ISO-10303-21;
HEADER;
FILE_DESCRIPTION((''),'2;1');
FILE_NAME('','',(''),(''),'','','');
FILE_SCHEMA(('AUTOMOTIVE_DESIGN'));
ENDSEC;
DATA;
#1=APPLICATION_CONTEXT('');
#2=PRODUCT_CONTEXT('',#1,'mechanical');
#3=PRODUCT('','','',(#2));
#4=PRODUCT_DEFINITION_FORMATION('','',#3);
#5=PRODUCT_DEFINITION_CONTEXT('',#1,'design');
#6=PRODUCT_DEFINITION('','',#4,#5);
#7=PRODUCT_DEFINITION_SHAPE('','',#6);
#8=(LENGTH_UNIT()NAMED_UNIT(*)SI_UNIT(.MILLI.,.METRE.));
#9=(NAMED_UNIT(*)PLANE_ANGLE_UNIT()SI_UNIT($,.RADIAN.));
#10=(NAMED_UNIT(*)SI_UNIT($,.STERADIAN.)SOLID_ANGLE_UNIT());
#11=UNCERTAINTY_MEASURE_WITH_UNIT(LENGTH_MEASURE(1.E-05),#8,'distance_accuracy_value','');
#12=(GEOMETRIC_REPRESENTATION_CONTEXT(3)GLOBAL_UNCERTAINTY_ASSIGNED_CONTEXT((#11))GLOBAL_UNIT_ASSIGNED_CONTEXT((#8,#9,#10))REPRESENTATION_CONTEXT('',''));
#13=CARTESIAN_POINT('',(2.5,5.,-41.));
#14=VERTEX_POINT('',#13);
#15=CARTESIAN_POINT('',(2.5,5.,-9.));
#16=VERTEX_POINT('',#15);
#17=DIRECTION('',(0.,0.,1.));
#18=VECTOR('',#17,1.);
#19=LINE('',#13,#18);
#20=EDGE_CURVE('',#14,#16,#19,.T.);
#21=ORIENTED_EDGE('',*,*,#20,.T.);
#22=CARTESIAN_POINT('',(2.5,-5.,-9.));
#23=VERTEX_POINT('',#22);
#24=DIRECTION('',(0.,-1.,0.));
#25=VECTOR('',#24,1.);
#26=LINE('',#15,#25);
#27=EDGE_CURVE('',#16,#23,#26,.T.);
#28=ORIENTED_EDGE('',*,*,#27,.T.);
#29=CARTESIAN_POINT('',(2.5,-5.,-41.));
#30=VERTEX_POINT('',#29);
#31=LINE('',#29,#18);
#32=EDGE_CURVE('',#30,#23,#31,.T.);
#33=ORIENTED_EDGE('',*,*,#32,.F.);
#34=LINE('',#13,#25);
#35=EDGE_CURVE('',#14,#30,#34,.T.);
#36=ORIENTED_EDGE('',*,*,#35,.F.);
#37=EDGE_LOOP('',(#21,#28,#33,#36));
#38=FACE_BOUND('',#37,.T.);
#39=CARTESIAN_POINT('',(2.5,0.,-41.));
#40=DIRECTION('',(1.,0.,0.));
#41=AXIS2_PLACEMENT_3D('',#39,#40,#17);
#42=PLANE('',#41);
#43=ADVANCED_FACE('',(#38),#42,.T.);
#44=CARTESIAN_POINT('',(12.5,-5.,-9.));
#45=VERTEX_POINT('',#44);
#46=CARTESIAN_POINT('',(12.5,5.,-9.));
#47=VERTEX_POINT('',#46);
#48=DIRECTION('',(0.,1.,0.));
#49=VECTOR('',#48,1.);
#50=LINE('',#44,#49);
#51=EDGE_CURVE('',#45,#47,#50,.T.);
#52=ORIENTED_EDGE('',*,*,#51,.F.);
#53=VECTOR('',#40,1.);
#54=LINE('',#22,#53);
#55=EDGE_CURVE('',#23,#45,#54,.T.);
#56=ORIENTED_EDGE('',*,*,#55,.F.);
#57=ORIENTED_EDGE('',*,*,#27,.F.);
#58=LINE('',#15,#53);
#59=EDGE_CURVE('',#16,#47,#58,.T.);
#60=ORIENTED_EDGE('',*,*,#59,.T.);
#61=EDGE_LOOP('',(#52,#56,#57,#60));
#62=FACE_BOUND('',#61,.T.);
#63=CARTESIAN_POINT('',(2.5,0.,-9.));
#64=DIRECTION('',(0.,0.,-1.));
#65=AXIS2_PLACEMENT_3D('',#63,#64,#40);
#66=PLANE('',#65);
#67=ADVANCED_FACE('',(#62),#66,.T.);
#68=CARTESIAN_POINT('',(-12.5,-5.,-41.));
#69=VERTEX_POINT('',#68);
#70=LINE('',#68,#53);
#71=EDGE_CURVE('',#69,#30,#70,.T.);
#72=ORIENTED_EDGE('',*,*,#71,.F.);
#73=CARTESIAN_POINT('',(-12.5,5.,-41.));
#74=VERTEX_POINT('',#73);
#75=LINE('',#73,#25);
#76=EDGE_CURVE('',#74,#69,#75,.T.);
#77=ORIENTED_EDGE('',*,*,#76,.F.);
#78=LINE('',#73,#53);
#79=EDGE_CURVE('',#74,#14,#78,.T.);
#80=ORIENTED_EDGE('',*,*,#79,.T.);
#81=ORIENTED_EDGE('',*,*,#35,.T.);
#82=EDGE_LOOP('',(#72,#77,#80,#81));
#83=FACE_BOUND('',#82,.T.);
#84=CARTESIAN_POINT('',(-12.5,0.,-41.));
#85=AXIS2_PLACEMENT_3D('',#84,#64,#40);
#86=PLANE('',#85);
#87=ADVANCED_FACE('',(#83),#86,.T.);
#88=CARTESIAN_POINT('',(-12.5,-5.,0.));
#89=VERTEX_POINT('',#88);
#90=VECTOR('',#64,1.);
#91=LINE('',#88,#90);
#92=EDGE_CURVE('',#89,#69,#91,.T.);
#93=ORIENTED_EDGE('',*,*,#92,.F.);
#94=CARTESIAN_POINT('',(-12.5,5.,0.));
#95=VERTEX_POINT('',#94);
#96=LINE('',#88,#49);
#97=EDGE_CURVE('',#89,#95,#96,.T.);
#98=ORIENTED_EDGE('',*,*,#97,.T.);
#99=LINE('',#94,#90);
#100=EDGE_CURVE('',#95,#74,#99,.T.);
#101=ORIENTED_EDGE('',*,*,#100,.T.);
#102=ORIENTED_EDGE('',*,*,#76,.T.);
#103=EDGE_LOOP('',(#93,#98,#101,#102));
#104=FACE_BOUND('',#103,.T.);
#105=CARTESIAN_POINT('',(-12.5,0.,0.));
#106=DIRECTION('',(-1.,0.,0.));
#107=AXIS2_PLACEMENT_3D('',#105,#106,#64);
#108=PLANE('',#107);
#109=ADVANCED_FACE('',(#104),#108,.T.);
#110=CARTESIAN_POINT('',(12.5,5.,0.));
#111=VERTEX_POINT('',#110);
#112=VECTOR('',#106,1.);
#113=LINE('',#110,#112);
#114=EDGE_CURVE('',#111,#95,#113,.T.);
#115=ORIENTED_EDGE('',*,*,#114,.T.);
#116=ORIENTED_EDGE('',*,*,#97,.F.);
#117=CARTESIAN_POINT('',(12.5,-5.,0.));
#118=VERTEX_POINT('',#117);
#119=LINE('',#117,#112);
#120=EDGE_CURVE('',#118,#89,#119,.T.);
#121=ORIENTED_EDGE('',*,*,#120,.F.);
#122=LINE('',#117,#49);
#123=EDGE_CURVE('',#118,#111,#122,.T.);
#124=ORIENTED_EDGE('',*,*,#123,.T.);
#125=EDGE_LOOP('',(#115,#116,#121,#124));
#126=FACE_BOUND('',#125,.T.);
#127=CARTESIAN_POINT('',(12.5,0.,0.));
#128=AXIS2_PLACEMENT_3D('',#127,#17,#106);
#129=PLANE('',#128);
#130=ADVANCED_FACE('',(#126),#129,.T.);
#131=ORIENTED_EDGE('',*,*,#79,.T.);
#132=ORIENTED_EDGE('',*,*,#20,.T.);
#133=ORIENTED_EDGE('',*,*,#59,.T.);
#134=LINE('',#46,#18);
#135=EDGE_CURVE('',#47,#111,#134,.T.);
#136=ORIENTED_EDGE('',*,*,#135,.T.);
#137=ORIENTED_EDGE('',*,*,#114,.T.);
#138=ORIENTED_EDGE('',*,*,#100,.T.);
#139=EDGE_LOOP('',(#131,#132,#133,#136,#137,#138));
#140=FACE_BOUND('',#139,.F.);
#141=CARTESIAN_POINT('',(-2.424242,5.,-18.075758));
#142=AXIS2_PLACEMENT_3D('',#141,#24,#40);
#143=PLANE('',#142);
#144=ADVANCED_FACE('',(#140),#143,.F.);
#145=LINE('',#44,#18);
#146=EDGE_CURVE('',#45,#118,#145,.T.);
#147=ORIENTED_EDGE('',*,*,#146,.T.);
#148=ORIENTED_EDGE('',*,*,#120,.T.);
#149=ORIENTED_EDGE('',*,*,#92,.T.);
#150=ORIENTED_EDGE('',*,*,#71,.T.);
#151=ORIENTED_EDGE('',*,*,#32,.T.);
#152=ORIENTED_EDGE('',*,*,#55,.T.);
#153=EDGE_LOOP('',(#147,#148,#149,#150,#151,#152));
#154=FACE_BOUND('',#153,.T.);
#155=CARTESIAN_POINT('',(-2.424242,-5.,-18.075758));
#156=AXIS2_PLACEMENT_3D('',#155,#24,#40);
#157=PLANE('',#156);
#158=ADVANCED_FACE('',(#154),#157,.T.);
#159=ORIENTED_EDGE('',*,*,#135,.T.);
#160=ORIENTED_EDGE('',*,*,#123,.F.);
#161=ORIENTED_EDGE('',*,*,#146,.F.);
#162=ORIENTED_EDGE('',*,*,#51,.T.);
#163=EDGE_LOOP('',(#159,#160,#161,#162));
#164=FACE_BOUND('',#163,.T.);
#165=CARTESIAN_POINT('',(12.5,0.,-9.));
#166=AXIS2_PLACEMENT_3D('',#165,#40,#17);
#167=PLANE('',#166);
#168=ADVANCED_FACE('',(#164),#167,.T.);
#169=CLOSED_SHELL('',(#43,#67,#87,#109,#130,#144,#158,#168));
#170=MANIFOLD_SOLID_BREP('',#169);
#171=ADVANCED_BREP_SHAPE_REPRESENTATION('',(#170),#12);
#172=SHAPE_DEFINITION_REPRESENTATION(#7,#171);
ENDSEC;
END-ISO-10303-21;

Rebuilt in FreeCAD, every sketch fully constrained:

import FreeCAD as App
import Part
import Sketcher


def add_polygon(sketch, points):
    """Adds a closed chain of lines whose ends are joined by coincident constraints."""
    first, n = sketch.GeometryCount, len(points)
    for a, b in zip(points, points[1:] + points[:1]):
        sketch.addGeometry(Part.LineSegment(App.Vector(*a, 0), App.Vector(*b, 0)), False)
    for i in range(n):
        sketch.addConstraint(Sketcher.Constraint("Coincident", first + i, 2, first + (i + 1) % n, 1))

doc = App.newDocument("Part")
body = doc.addObject("PartDesign::Body", "Body")

# Sketch on XZ plane
sketch1 = body.newObject("Sketcher::SketchObject", "Sketch")
sketch1.AttachmentSupport = (doc.getObject("XZ_Plane"), [""])
sketch1.MapMode = "FlatFace"
add_polygon(sketch1, [(-12, 0), (-12, -41), (2, -41), (2, -9), (12, -9), (12, 0)])  # lines 0-5
sketch1.addConstraint([
    Sketcher.Constraint("Vertical", 0),
    Sketcher.Constraint("Horizontal", 1),
    Sketcher.Constraint("Vertical", 2),
    Sketcher.Constraint("Horizontal", 3),
    Sketcher.Constraint("Vertical", 4),
    Sketcher.Constraint("Horizontal", 5),
    Sketcher.Constraint("Symmetric", 4, 2, 5, 2, -1, 1),
    Sketcher.Constraint("DistanceX", 1, 1, 1, 2, 15.0),
    Sketcher.Constraint("DistanceX", 3, 1, 3, 2, 10.0),
    Sketcher.Constraint("DistanceY", 0, 2, 0, 1, 41.0),
    Sketcher.Constraint("DistanceY", 2, 1, 2, 2, 32.0),
])
pad1 = body.newObject("PartDesign::Pad", "Pad")
pad1.Profile = sketch1
pad1.Length = 10
pad1.Midplane = True

doc.recompute()
